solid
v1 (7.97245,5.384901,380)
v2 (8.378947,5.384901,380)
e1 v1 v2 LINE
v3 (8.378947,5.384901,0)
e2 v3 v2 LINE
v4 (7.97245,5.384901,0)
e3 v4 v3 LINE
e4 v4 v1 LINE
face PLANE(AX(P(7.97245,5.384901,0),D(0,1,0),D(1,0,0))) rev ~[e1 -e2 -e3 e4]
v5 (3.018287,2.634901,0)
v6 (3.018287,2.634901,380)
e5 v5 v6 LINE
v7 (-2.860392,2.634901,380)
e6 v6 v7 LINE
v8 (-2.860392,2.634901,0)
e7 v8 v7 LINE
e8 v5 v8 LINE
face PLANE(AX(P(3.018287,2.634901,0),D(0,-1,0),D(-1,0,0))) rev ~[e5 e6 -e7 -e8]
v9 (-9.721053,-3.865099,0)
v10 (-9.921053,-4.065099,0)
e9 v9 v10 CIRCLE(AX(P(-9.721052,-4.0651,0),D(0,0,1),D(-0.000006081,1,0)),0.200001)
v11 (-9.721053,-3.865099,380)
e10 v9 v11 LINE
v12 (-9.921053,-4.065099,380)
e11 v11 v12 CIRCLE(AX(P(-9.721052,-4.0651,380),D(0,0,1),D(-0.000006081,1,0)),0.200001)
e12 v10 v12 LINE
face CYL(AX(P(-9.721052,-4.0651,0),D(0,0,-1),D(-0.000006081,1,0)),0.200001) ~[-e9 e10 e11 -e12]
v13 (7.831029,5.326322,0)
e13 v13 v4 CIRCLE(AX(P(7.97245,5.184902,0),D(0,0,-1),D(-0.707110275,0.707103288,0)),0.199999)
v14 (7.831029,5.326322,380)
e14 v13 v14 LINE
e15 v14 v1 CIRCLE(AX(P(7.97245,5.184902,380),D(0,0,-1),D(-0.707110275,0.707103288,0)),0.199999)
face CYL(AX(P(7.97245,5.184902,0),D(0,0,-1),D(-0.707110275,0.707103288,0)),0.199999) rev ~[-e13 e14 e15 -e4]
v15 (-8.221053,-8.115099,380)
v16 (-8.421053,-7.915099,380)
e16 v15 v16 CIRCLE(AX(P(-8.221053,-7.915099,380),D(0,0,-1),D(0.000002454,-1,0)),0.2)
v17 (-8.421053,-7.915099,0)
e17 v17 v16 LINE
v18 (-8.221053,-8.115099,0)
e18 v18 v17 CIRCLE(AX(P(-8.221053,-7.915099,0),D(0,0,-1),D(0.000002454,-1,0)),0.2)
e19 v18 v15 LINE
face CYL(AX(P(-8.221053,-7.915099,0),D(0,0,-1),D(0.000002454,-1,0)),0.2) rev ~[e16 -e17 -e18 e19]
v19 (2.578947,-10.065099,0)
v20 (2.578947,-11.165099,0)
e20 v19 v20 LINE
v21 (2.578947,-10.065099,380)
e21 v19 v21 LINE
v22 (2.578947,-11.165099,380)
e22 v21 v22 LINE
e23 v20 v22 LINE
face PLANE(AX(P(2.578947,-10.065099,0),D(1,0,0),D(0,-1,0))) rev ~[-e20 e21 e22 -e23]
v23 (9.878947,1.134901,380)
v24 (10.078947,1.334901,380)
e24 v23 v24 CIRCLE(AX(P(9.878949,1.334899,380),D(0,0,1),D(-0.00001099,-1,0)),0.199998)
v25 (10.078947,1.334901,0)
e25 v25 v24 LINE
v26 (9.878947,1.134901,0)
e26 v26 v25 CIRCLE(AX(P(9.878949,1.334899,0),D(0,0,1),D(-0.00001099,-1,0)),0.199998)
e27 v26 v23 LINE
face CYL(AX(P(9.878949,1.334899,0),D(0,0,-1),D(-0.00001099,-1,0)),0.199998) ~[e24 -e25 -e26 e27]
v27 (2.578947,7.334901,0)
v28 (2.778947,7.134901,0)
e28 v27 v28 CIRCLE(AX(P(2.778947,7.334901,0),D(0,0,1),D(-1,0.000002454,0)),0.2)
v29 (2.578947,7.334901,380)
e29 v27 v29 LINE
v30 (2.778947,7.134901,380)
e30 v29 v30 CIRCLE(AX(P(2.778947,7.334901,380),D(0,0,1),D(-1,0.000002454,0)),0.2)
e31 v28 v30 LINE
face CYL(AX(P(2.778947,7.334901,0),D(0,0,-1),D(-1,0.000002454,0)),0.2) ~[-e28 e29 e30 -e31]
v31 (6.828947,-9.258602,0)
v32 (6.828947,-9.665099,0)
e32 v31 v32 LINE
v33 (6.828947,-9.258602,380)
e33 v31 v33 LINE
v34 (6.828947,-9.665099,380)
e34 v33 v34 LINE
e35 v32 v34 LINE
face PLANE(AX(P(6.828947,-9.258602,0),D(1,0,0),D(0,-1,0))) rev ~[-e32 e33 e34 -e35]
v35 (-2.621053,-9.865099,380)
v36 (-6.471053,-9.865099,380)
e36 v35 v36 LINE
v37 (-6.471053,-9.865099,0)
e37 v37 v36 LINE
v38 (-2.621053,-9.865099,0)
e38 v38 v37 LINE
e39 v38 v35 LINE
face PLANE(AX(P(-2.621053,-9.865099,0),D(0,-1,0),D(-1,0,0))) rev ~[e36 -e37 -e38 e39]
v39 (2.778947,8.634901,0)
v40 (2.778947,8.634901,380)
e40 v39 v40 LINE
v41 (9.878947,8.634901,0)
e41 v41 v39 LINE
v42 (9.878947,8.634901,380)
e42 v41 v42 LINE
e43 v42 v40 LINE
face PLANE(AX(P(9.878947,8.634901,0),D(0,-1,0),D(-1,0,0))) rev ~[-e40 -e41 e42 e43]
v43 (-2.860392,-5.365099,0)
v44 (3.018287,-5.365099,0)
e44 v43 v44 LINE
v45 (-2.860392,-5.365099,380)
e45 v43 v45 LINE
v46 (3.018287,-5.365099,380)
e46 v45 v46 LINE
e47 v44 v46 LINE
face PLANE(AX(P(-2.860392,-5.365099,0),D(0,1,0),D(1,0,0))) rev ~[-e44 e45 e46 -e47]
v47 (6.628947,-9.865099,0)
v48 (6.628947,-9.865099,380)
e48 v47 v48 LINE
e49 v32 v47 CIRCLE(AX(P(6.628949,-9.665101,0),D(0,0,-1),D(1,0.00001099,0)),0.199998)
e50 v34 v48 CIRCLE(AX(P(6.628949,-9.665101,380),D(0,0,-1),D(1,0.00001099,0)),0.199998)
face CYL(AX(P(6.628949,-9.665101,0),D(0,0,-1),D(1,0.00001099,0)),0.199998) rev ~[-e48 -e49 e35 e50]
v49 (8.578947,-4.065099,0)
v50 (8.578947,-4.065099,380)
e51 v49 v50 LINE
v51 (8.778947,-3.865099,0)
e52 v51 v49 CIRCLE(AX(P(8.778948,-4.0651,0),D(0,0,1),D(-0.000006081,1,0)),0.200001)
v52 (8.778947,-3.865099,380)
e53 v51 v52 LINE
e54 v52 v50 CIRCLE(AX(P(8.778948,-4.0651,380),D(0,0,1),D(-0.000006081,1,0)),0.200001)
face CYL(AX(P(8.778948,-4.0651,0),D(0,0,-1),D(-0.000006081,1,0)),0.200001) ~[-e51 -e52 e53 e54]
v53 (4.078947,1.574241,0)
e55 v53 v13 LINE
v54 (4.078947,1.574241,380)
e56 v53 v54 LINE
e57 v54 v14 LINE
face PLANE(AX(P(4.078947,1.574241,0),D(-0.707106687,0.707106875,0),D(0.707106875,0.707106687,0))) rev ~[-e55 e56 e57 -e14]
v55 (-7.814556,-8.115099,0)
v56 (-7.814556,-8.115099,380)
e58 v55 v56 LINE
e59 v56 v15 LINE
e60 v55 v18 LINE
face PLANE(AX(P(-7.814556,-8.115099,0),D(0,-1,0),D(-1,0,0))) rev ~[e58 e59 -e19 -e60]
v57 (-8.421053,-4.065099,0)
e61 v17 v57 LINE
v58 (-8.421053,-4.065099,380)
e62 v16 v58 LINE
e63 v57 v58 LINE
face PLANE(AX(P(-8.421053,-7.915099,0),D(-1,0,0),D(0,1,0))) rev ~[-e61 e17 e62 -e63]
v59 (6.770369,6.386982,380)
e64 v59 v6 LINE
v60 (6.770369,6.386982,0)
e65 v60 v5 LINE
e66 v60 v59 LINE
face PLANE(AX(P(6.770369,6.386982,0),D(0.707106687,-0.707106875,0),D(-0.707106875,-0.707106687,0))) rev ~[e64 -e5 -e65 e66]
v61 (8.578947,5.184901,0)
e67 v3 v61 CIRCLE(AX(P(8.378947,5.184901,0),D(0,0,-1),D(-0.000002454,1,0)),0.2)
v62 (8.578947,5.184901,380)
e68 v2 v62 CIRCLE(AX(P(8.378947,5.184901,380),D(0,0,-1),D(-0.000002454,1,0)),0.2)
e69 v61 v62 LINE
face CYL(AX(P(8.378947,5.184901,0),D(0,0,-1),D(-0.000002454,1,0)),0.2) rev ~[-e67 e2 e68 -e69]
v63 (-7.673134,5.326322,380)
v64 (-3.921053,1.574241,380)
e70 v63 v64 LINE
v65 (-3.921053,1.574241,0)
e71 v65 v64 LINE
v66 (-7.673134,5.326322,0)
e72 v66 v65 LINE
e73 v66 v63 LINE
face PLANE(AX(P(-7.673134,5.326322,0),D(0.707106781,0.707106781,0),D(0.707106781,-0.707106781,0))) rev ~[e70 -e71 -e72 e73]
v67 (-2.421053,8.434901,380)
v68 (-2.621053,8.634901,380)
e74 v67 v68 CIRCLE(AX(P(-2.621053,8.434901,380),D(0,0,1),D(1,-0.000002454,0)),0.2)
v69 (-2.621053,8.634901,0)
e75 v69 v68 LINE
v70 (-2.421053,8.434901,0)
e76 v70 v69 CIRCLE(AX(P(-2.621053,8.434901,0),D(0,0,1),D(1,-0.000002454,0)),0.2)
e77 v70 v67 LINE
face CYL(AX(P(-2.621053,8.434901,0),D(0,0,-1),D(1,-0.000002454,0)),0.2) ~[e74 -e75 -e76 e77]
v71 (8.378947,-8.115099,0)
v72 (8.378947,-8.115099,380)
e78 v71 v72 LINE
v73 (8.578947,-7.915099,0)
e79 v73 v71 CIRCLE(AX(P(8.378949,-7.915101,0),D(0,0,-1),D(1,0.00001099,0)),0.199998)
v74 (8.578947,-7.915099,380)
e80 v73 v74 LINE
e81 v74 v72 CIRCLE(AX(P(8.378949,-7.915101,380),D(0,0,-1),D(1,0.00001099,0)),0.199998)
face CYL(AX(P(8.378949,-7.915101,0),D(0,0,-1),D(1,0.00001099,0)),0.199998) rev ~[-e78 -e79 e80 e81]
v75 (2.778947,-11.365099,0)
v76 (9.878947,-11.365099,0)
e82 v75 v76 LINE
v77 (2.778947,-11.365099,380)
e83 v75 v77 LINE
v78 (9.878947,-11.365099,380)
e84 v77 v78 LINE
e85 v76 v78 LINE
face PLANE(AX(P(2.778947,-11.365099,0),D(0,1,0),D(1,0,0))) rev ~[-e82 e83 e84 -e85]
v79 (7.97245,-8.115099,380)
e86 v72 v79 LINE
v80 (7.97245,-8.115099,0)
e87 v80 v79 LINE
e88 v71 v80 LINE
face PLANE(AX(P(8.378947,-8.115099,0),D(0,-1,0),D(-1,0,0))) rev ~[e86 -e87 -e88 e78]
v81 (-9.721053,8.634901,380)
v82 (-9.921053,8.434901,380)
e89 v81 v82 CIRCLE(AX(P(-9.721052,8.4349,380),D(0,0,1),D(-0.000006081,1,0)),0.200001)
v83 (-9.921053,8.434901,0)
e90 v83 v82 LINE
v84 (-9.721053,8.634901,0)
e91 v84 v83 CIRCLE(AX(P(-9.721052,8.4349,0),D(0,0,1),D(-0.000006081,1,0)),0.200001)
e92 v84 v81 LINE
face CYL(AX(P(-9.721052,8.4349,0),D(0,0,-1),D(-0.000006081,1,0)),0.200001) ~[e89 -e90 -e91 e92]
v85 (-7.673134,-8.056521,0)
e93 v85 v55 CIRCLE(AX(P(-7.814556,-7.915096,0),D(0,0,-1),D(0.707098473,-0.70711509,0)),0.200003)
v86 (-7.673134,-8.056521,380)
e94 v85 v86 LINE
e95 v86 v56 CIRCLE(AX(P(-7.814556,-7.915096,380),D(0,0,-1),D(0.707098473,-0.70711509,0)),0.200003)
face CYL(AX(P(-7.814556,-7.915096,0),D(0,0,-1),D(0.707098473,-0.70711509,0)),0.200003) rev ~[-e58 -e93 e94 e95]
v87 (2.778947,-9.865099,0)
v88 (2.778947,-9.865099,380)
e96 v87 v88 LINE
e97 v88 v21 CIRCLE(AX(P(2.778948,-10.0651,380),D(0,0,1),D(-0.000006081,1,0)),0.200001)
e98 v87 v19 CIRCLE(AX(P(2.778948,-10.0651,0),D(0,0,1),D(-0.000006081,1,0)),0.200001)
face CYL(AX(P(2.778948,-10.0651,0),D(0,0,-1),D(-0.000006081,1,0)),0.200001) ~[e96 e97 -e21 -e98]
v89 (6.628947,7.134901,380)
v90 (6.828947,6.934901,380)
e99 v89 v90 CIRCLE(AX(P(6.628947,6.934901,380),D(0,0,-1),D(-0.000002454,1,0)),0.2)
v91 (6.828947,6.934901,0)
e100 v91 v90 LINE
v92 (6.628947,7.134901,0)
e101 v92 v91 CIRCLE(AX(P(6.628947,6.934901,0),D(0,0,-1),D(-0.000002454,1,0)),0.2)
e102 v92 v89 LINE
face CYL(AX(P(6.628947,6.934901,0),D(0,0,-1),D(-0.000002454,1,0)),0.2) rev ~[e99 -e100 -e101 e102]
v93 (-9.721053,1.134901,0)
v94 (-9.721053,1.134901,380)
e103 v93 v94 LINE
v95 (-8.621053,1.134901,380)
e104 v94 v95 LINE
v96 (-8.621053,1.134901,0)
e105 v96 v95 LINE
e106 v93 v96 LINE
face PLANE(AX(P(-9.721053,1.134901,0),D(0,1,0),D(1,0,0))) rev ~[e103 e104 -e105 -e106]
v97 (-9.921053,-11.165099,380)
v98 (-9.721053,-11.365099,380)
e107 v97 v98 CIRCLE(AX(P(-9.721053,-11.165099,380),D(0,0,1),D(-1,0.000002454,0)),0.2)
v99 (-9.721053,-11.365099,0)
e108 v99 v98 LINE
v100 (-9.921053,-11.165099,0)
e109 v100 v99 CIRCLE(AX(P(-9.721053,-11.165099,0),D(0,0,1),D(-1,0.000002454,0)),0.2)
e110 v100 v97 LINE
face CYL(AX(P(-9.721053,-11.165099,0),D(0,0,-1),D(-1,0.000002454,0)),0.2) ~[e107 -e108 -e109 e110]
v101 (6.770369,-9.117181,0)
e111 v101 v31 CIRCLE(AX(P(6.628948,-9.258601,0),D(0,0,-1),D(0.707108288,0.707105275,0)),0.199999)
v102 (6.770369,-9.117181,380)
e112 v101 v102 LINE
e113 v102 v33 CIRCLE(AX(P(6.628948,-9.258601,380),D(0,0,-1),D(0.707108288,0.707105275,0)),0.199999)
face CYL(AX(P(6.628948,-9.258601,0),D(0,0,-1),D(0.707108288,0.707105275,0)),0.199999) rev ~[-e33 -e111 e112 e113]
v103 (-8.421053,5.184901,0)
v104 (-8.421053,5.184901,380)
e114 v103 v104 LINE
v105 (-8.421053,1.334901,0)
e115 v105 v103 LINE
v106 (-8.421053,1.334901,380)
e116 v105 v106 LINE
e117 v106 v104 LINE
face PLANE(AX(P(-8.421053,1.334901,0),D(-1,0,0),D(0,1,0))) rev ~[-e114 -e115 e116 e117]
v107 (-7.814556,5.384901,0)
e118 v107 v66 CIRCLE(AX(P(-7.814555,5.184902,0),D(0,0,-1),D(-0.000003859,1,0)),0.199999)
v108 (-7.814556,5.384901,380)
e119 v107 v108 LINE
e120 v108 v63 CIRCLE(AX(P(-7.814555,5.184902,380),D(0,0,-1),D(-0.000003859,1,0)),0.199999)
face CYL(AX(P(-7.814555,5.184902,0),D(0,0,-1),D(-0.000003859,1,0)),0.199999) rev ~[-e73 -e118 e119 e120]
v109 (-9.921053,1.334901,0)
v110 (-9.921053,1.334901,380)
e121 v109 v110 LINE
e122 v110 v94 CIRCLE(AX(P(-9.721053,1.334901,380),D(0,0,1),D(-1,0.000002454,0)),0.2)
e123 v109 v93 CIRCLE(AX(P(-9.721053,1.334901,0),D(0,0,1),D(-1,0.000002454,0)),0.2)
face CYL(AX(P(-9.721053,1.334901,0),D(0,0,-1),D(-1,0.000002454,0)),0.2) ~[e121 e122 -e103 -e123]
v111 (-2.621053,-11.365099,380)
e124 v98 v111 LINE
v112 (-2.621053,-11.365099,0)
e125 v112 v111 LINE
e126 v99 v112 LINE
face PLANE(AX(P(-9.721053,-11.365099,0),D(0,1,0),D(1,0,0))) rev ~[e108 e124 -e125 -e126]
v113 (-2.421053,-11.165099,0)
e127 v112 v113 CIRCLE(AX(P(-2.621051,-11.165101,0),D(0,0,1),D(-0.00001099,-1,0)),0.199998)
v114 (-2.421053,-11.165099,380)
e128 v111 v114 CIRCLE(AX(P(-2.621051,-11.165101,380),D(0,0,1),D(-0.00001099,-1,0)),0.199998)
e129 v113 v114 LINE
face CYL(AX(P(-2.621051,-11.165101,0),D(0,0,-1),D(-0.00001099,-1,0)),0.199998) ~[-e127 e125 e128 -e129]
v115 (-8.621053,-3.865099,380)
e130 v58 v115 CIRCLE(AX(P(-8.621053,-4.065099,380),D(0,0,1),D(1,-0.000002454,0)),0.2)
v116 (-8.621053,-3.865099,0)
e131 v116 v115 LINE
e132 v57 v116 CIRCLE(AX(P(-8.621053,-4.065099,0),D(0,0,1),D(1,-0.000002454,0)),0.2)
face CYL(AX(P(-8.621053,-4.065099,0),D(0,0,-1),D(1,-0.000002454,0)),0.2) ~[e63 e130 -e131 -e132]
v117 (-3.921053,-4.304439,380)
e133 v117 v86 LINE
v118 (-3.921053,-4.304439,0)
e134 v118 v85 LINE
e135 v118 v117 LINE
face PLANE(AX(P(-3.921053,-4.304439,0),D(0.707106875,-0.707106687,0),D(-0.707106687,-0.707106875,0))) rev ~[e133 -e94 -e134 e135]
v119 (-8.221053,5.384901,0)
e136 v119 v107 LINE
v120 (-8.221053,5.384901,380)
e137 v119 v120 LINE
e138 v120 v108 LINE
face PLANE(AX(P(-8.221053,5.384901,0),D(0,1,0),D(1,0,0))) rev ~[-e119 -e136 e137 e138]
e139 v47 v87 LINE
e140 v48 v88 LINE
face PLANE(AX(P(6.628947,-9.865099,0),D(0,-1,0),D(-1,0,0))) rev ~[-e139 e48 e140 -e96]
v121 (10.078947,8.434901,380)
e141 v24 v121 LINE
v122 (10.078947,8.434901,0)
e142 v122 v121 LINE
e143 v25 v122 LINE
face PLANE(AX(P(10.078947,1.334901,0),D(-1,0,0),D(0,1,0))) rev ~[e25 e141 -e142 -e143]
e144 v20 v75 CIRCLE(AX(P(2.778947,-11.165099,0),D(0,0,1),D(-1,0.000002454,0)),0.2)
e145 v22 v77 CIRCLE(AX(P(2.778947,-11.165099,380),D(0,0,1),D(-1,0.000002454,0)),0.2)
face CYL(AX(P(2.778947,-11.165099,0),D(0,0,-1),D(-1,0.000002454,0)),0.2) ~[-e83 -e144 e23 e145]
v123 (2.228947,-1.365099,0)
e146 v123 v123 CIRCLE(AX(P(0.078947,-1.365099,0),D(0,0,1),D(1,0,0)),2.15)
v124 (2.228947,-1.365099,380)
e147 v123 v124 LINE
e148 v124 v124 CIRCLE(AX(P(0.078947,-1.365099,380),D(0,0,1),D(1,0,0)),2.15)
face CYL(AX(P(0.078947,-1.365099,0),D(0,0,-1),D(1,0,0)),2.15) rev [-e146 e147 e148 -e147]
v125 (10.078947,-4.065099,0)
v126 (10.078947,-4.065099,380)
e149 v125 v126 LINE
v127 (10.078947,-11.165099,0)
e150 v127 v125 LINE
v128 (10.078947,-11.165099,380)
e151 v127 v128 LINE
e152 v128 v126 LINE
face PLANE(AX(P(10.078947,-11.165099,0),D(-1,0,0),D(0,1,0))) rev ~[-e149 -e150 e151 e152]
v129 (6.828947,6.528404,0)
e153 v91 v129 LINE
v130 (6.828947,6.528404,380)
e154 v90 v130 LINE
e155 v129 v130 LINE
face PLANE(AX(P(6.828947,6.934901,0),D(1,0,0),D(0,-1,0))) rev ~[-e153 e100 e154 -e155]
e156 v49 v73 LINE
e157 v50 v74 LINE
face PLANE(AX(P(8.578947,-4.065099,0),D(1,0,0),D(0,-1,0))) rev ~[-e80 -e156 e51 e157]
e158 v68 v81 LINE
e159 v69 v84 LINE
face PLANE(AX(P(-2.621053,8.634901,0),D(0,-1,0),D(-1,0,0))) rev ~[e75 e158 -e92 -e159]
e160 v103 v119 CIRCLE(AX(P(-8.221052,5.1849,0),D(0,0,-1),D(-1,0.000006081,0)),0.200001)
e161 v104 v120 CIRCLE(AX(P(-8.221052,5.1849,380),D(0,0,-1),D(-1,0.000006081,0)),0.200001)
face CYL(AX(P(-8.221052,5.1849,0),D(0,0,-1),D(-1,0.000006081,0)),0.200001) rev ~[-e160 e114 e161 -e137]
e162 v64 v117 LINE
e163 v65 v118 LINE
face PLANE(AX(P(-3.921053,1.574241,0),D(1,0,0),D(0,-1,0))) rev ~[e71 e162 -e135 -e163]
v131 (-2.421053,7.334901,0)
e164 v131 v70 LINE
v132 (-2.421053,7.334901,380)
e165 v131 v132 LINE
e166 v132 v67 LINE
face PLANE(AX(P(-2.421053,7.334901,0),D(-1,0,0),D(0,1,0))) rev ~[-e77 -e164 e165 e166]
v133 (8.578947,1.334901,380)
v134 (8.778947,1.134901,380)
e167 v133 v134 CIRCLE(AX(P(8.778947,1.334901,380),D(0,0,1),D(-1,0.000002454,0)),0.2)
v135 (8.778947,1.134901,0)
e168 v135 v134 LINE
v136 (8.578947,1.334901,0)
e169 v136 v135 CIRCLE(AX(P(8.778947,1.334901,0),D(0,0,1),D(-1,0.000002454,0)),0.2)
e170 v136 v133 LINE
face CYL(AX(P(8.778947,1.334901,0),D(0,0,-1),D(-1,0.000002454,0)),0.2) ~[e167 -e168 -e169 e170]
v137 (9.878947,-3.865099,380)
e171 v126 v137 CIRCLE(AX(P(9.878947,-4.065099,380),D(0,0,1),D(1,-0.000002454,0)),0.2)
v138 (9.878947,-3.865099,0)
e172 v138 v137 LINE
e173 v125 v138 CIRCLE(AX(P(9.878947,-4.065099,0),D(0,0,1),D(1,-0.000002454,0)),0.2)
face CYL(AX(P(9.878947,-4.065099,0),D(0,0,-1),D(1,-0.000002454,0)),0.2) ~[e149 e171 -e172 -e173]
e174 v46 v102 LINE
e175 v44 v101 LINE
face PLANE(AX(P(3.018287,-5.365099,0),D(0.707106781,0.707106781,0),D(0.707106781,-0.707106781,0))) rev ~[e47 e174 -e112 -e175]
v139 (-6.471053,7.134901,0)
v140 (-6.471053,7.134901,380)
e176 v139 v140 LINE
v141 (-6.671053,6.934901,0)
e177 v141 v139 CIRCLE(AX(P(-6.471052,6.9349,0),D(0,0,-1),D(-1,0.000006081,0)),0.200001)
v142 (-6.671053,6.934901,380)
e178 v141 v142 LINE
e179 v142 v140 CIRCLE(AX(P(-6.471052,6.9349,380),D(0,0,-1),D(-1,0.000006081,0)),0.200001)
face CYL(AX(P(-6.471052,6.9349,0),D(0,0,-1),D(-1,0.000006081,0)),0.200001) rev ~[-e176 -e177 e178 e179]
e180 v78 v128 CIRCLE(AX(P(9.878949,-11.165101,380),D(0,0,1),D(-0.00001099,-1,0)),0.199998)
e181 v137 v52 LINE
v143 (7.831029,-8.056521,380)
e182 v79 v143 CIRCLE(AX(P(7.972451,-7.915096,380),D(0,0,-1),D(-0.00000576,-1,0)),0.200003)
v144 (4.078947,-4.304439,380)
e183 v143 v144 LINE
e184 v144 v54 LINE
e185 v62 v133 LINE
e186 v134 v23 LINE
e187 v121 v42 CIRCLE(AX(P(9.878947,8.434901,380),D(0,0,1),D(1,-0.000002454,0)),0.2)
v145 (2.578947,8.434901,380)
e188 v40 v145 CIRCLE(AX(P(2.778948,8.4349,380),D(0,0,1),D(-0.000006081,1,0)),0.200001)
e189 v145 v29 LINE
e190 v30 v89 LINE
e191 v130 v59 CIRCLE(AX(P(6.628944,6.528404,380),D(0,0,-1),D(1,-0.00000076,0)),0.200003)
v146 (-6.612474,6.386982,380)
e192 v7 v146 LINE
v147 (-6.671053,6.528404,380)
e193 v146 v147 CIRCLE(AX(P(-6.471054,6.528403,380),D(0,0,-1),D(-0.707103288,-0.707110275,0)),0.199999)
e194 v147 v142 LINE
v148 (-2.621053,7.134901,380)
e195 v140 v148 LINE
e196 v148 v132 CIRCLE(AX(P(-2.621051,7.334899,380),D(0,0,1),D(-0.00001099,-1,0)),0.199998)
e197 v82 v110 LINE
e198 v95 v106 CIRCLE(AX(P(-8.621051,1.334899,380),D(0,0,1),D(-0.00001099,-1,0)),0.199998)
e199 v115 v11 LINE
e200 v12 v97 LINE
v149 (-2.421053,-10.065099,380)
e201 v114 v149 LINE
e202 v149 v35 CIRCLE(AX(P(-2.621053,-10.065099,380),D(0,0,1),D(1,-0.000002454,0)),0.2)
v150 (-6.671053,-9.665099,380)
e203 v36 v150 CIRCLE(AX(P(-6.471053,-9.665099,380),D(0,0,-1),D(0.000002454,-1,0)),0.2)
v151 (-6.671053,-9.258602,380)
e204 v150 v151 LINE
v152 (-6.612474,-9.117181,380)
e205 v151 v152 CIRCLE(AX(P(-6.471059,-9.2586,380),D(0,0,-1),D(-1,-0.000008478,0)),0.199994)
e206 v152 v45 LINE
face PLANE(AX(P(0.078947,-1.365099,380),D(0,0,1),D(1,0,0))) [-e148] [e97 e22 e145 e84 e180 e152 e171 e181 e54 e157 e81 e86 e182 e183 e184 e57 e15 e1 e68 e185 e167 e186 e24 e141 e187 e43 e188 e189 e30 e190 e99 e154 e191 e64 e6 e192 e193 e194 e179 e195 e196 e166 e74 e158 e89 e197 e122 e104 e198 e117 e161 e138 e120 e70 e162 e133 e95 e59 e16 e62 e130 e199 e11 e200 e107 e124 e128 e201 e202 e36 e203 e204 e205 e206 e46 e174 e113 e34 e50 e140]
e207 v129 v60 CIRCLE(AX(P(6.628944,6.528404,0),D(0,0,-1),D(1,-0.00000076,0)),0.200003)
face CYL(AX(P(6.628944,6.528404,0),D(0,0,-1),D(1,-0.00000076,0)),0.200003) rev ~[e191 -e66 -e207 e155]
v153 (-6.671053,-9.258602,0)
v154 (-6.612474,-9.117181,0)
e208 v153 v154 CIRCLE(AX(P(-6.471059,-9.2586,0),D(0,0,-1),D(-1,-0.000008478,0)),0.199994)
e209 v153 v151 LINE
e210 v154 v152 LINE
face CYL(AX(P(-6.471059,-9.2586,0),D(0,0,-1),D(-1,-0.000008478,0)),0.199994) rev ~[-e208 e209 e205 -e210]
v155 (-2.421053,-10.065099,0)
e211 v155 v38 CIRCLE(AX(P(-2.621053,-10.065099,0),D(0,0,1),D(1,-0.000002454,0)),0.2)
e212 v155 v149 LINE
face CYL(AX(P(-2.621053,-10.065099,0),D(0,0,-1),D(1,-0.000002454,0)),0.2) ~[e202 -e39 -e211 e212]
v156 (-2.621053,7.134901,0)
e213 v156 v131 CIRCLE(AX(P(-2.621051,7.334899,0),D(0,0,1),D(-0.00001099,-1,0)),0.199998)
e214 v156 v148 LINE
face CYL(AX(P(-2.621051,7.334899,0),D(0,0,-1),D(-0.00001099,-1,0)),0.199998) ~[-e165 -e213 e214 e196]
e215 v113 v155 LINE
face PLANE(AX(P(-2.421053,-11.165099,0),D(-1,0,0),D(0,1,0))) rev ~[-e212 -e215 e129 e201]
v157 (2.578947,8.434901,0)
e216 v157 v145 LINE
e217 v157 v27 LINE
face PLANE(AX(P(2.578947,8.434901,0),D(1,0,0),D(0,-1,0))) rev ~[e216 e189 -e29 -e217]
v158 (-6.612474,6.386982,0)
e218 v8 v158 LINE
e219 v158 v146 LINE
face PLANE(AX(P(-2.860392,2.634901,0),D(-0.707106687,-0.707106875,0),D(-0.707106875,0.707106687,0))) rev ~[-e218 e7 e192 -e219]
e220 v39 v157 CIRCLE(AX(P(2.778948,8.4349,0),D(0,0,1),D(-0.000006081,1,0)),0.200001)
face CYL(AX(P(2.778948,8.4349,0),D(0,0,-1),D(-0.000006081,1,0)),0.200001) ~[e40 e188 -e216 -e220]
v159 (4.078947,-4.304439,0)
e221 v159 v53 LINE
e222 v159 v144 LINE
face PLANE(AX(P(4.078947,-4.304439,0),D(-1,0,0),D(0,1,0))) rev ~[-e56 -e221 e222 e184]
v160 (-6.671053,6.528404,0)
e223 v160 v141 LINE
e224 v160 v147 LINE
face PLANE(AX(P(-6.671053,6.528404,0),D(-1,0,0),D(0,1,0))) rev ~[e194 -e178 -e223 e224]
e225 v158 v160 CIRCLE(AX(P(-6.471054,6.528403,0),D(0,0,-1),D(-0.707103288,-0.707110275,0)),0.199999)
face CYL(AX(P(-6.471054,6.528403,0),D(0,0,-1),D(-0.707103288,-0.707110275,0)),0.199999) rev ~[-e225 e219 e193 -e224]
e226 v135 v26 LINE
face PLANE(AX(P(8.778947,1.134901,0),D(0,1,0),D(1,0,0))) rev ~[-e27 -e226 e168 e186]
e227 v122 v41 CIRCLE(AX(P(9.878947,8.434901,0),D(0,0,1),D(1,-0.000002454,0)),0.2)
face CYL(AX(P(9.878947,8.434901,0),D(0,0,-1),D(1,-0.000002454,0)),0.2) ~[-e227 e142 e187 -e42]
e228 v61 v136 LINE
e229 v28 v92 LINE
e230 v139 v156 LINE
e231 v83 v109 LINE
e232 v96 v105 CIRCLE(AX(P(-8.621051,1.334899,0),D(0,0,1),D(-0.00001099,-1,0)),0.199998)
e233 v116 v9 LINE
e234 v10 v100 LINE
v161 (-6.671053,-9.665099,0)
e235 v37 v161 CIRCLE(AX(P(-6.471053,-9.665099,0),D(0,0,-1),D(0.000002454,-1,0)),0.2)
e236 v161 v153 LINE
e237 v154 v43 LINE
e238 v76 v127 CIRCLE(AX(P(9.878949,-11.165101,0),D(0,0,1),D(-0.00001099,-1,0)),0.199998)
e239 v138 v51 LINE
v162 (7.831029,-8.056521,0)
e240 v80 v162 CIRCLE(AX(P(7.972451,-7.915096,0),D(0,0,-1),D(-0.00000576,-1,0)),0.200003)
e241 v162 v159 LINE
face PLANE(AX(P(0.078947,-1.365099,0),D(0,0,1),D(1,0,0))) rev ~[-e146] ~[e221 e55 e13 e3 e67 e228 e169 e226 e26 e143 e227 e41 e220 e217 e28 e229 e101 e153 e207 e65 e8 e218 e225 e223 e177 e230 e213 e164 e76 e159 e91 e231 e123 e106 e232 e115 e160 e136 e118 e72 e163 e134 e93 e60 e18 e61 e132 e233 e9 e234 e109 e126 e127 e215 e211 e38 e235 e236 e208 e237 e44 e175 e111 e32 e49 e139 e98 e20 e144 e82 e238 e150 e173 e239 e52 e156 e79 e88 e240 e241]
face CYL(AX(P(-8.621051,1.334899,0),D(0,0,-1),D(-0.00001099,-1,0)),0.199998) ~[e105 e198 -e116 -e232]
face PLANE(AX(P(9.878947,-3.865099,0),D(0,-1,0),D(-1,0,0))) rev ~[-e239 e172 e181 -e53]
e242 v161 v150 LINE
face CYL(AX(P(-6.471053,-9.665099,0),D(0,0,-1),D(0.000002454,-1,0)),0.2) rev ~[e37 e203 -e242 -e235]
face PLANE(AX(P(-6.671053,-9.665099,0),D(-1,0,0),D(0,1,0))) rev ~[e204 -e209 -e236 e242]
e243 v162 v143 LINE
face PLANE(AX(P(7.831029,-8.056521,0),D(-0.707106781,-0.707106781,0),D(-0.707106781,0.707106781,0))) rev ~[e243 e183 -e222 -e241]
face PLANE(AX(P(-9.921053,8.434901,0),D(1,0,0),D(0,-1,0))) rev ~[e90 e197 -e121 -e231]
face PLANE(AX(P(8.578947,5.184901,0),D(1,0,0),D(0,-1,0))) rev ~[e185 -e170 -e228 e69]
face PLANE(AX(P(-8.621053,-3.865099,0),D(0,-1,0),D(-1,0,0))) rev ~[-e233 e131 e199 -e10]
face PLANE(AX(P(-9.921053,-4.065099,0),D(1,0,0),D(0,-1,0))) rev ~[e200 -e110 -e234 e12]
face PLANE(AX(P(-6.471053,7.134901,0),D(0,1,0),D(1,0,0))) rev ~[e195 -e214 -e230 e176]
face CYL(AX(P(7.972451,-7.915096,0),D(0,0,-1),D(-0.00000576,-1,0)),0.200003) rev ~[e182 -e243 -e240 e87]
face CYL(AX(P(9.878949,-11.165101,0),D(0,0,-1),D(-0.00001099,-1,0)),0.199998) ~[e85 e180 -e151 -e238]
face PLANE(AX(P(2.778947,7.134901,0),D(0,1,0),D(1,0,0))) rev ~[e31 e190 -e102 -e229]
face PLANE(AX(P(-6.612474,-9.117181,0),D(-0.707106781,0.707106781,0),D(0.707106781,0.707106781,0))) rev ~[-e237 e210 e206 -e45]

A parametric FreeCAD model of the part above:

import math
import FreeCAD as App
import Part
import Sketcher

V = App.Vector

doc = App.newDocument("Part")
body = doc.addObject("PartDesign::Body", "Body")

sketch1 = body.newObject("Sketcher::SketchObject", "Sketch")
sketch1.AttachmentSupport = (doc.getObject("XY_Plane"), [""])
sketch1.MapMode = "FlatFace"
sketch1.addGeometry(Part.ArcOfCircle(Part.Circle(V(9.88, 8.43, 0), V(0, 0, 1), 0.2), math.radians(0), math.radians(90)), False)
sketch1.addGeometry(Part.LineSegment(V(9.88, 8.63, 0), V(2.78, 8.63, 0)), False)
sketch1.addGeometry(Part.ArcOfCircle(Part.Circle(V(2.78, 8.43, 0), V(0, 0, 1), 0.2), math.radians(90), math.radians(180)), False)
sketch1.addGeometry(Part.LineSegment(V(2.58, 8.43, 0), V(2.58, 7.33, 0)), False)
sketch1.addGeometry(Part.ArcOfCircle(Part.Circle(V(2.78, 7.33, 0), V(0, 0, 1), 0.2), math.radians(180), math.radians(270)), False)
sketch1.addGeometry(Part.LineSegment(V(2.78, 7.13, 0), V(6.63, 7.13, 0)), False)
sketch1.addGeometry(Part.ArcOfCircle(Part.Circle(V(6.63, 6.93, 0), V(0, 0, 1), 0.2), math.radians(0), math.radians(90)), False)
sketch1.addGeometry(Part.LineSegment(V(6.83, 6.93, 0), V(6.83, 6.53, 0)), False)
sketch1.addGeometry(Part.ArcOfCircle(Part.Circle(V(6.63, 6.53, 0), V(0, 0, 1), 0.2), math.radians(-45), math.radians(0)), False)
sketch1.addGeometry(Part.LineSegment(V(6.77, 6.39, 0), V(3.02, 2.63, 0)), False)
sketch1.addGeometry(Part.LineSegment(V(3.02, 2.63, 0), V(-2.86, 2.63, 0)), False)
sketch1.addGeometry(Part.LineSegment(V(-2.86, 2.63, 0), V(-6.61, 6.39, 0)), False)
sketch1.addGeometry(Part.ArcOfCircle(Part.Circle(V(-6.47, 6.53, 0), V(0, 0, 1), 0.2), math.radians(180), math.radians(225)), False)
sketch1.addGeometry(Part.LineSegment(V(-6.67, 6.53, 0), V(-6.67, 6.93, 0)), False)
sketch1.addGeometry(Part.ArcOfCircle(Part.Circle(V(-6.47, 6.93, 0), V(0, 0, 1), 0.2), math.radians(90), math.radians(180)), False)
sketch1.addGeometry(Part.LineSegment(V(-6.47, 7.13, 0), V(-2.62, 7.13, 0)), False)
sketch1.addGeometry(Part.ArcOfCircle(Part.Circle(V(-2.62, 7.33, 0), V(0, 0, 1), 0.2), math.radians(-90), math.radians(0)), False)
sketch1.addGeometry(Part.LineSegment(V(-2.42, 7.33, 0), V(-2.42, 8.43, 0)), False)
sketch1.addGeometry(Part.ArcOfCircle(Part.Circle(V(-2.62, 8.43, 0), V(0, 0, 1), 0.2), math.radians(0), math.radians(90)), False)
sketch1.addGeometry(Part.LineSegment(V(-2.62, 8.63, 0), V(-9.72, 8.63, 0)), False)
sketch1.addGeometry(Part.ArcOfCircle(Part.Circle(V(-9.72, 8.43, 0), V(0, 0, 1), 0.2), math.radians(90), math.radians(180)), False)
sketch1.addGeometry(Part.LineSegment(V(-9.92, 8.43, 0), V(-9.92, 1.33, 0)), False)
sketch1.addGeometry(Part.ArcOfCircle(Part.Circle(V(-9.72, 1.33, 0), V(0, 0, 1), 0.2), math.radians(180), math.radians(270)), False)
sketch1.addGeometry(Part.LineSegment(V(-9.72, 1.13, 0), V(-8.62, 1.13, 0)), False)
sketch1.addGeometry(Part.ArcOfCircle(Part.Circle(V(-8.62, 1.33, 0), V(0, 0, 1), 0.2), math.radians(-90), math.radians(0)), False)
sketch1.addGeometry(Part.LineSegment(V(-8.42, 1.33, 0), V(-8.42, 5.18, 0)), False)
sketch1.addGeometry(Part.ArcOfCircle(Part.Circle(V(-8.22, 5.18, 0), V(0, 0, 1), 0.2), math.radians(90), math.radians(180)), False)
sketch1.addGeometry(Part.LineSegment(V(-8.22, 5.38, 0), V(-7.81, 5.38, 0)), False)
sketch1.addGeometry(Part.ArcOfCircle(Part.Circle(V(-7.81, 5.18, 0), V(0, 0, 1), 0.2), math.radians(45), math.radians(90)), False)
sketch1.addGeometry(Part.LineSegment(V(-7.67, 5.33, 0), V(-3.92, 1.57, 0)), False)
sketch1.addGeometry(Part.LineSegment(V(-3.92, 1.57, 0), V(-3.92, -4.3, 0)), False)
sketch1.addGeometry(Part.LineSegment(V(-3.92, -4.3, 0), V(-7.67, -8.06, 0)), False)
sketch1.addGeometry(Part.ArcOfCircle(Part.Circle(V(-7.81, -7.92, 0), V(0, 0, 1), 0.2), math.radians(-90), math.radians(-45)), False)
sketch1.addGeometry(Part.LineSegment(V(-7.81, -8.12, 0), V(-8.22, -8.12, 0)), False)
sketch1.addGeometry(Part.ArcOfCircle(Part.Circle(V(-8.22, -7.92, 0), V(0, 0, 1), 0.2), math.radians(180), math.radians(270)), False)
sketch1.addGeometry(Part.LineSegment(V(-8.42, -7.92, 0), V(-8.42, -4.07, 0)), False)
sketch1.addGeometry(Part.ArcOfCircle(Part.Circle(V(-8.62, -4.07, 0), V(0, 0, 1), 0.2), math.radians(0), math.radians(90)), False)
sketch1.addGeometry(Part.LineSegment(V(-8.62, -3.87, 0), V(-9.72, -3.87, 0)), False)
sketch1.addGeometry(Part.ArcOfCircle(Part.Circle(V(-9.72, -4.07, 0), V(0, 0, 1), 0.2), math.radians(90), math.radians(180)), False)
sketch1.addGeometry(Part.LineSegment(V(-9.92, -4.07, 0), V(-9.92, -11.17, 0)), False)
sketch1.addGeometry(Part.ArcOfCircle(Part.Circle(V(-9.72, -11.17, 0), V(0, 0, 1), 0.2), math.radians(180), math.radians(270)), False)
sketch1.addGeometry(Part.LineSegment(V(-9.72, -11.37, 0), V(-2.62, -11.37, 0)), False)
sketch1.addGeometry(Part.ArcOfCircle(Part.Circle(V(-2.62, -11.17, 0), V(0, 0, 1), 0.2), math.radians(-90), math.radians(0)), False)
sketch1.addGeometry(Part.LineSegment(V(-2.42, -11.17, 0), V(-2.42, -10.07, 0)), False)
sketch1.addGeometry(Part.ArcOfCircle(Part.Circle(V(-2.62, -10.07, 0), V(0, 0, 1), 0.2), math.radians(0), math.radians(90)), False)
sketch1.addGeometry(Part.LineSegment(V(-2.62, -9.87, 0), V(-6.47, -9.87, 0)), False)
sketch1.addGeometry(Part.ArcOfCircle(Part.Circle(V(-6.47, -9.67, 0), V(0, 0, 1), 0.2), math.radians(180), math.radians(270)), False)
sketch1.addGeometry(Part.LineSegment(V(-6.67, -9.67, 0), V(-6.67, -9.26, 0)), False)
sketch1.addGeometry(Part.ArcOfCircle(Part.Circle(V(-6.47, -9.26, 0), V(0, 0, 1), 0.2), math.radians(135), math.radians(180)), False)
sketch1.addGeometry(Part.LineSegment(V(-6.61, -9.12, 0), V(-2.86, -5.37, 0)), False)
sketch1.addGeometry(Part.LineSegment(V(-2.86, -5.37, 0), V(3.02, -5.37, 0)), False)
sketch1.addGeometry(Part.LineSegment(V(3.02, -5.37, 0), V(6.77, -9.12, 0)), False)
sketch1.addGeometry(Part.ArcOfCircle(Part.Circle(V(6.63, -9.26, 0), V(0, 0, 1), 0.2), math.radians(0), math.radians(45)), False)
sketch1.addGeometry(Part.LineSegment(V(6.83, -9.26, 0), V(6.83, -9.67, 0)), False)
sketch1.addGeometry(Part.ArcOfCircle(Part.Circle(V(6.63, -9.67, 0), V(0, 0, 1), 0.2), math.radians(-90), math.radians(0)), False)
sketch1.addGeometry(Part.LineSegment(V(6.63, -9.87, 0), V(2.78, -9.87, 0)), False)
sketch1.addGeometry(Part.ArcOfCircle(Part.Circle(V(2.78, -10.07, 0), V(0, 0, 1), 0.2), math.radians(90), math.radians(180)), False)
sketch1.addGeometry(Part.LineSegment(V(2.58, -10.07, 0), V(2.58, -11.17, 0)), False)
sketch1.addGeometry(Part.ArcOfCircle(Part.Circle(V(2.78, -11.17, 0), V(0, 0, 1), 0.2), math.radians(180), math.radians(270)), False)
sketch1.addGeometry(Part.LineSegment(V(2.78, -11.37, 0), V(9.88, -11.37, 0)), False)
sketch1.addGeometry(Part.ArcOfCircle(Part.Circle(V(9.88, -11.17, 0), V(0, 0, 1), 0.2), math.radians(-90), math.radians(0)), False)
sketch1.addGeometry(Part.LineSegment(V(10.08, -11.17, 0), V(10.08, -4.07, 0)), False)
sketch1.addGeometry(Part.ArcOfCircle(Part.Circle(V(9.88, -4.07, 0), V(0, 0, 1), 0.2), math.radians(0), math.radians(90)), False)
sketch1.addGeometry(Part.LineSegment(V(9.88, -3.87, 0), V(8.78, -3.87, 0)), False)
sketch1.addGeometry(Part.ArcOfCircle(Part.Circle(V(8.78, -4.07, 0), V(0, 0, 1), 0.2), math.radians(90), math.radians(180)), False)
sketch1.addGeometry(Part.LineSegment(V(8.58, -4.07, 0), V(8.58, -7.92, 0)), False)
sketch1.addGeometry(Part.ArcOfCircle(Part.Circle(V(8.38, -7.92, 0), V(0, 0, 1), 0.2), math.radians(-90), math.radians(0)), False)
sketch1.addGeometry(Part.LineSegment(V(8.38, -8.12, 0), V(7.97, -8.12, 0)), False)
sketch1.addGeometry(Part.ArcOfCircle(Part.Circle(V(7.97, -7.92, 0), V(0, 0, 1), 0.2), math.radians(-135), math.radians(-90)), False)
sketch1.addGeometry(Part.LineSegment(V(7.83, -8.06, 0), V(4.08, -4.3, 0)), False)
sketch1.addGeometry(Part.LineSegment(V(4.08, -4.3, 0), V(4.08, 1.57, 0)), False)
sketch1.addGeometry(Part.LineSegment(V(4.08, 1.57, 0), V(7.83, 5.33, 0)), False)
sketch1.addGeometry(Part.ArcOfCircle(Part.Circle(V(7.97, 5.18, 0), V(0, 0, 1), 0.2), math.radians(90), math.radians(135)), False)
sketch1.addGeometry(Part.LineSegment(V(7.97, 5.38, 0), V(8.38, 5.38, 0)), False)
sketch1.addGeometry(Part.ArcOfCircle(Part.Circle(V(8.38, 5.18, 0), V(0, 0, 1), 0.2), math.radians(0), math.radians(90)), False)
sketch1.addGeometry(Part.LineSegment(V(8.58, 5.18, 0), V(8.58, 1.33, 0)), False)
sketch1.addGeometry(Part.ArcOfCircle(Part.Circle(V(8.78, 1.33, 0), V(0, 0, 1), 0.2), math.radians(180), math.radians(270)), False)
sketch1.addGeometry(Part.LineSegment(V(8.78, 1.13, 0), V(9.88, 1.13, 0)), False)
sketch1.addGeometry(Part.ArcOfCircle(Part.Circle(V(9.88, 1.33, 0), V(0, 0, 1), 0.2), math.radians(-90), math.radians(0)), False)
sketch1.addGeometry(Part.LineSegment(V(10.08, 1.33, 0), V(10.08, 8.43, 0)), False)
sketch1.addGeometry(Part.Circle(V(0.08, -1.37, 0), V(0, 0, 1), 2.15), False)
sketch1.addConstraint(Sketcher.Constraint("Coincident", 0, 2, 1, 1))
sketch1.addConstraint(Sketcher.Constraint("Coincident", 1, 2, 2, 1))
sketch1.addConstraint(Sketcher.Constraint("Coincident", 2, 2, 3, 1))
sketch1.addConstraint(Sketcher.Constraint("Coincident", 3, 2, 4, 1))
sketch1.addConstraint(Sketcher.Constraint("Coincident", 4, 2, 5, 1))
sketch1.addConstraint(Sketcher.Constraint("Coincident", 5, 2, 6, 2))
sketch1.addConstraint(Sketcher.Constraint("Coincident", 6, 1, 7, 1))
sketch1.addConstraint(Sketcher.Constraint("Tangent", 7, 2, 8, 2))
sketch1.addConstraint(Sketcher.Constraint("Coincident", 8, 1, 9, 1))
sketch1.addConstraint(Sketcher.Constraint("Coincident", 9, 2, 10, 1))
sketch1.addConstraint(Sketcher.Constraint("Coincident", 10, 2, 11, 1))
sketch1.addConstraint(Sketcher.Constraint("Coincident", 11, 2, 12, 2))
sketch1.addConstraint(Sketcher.Constraint("Coincident", 12, 1, 13, 1))
sketch1.addConstraint(Sketcher.Constraint("Coincident", 13, 2, 14, 2))
sketch1.addConstraint(Sketcher.Constraint("Coincident", 14, 1, 15, 1))
sketch1.addConstraint(Sketcher.Constraint("Coincident", 15, 2, 16, 1))
sketch1.addConstraint(Sketcher.Constraint("Coincident", 16, 2, 17, 1))
sketch1.addConstraint(Sketcher.Constraint("Coincident", 17, 2, 18, 1))
sketch1.addConstraint(Sketcher.Constraint("Coincident", 18, 2, 19, 1))
sketch1.addConstraint(Sketcher.Constraint("Coincident", 19, 2, 20, 1))
sketch1.addConstraint(Sketcher.Constraint("Coincident", 20, 2, 21, 1))
sketch1.addConstraint(Sketcher.Constraint("Coincident", 21, 2, 22, 1))
sketch1.addConstraint(Sketcher.Constraint("Coincident", 22, 2, 23, 1))
sketch1.addConstraint(Sketcher.Constraint("Coincident", 23, 2, 24, 1))
sketch1.addConstraint(Sketcher.Constraint("Coincident", 24, 2, 25, 1))
sketch1.addConstraint(Sketcher.Constraint("Coincident", 25, 2, 26, 2))
sketch1.addConstraint(Sketcher.Constraint("Coincident", 26, 1, 27, 1))
sketch1.addConstraint(Sketcher.Constraint("Coincident", 27, 2, 28, 2))
sketch1.addConstraint(Sketcher.Constraint("Coincident", 28, 1, 29, 1))
sketch1.addConstraint(Sketcher.Constraint("Coincident", 29, 2, 30, 1))
sketch1.addConstraint(Sketcher.Constraint("Coincident", 30, 2, 31, 1))
sketch1.addConstraint(Sketcher.Constraint("Coincident", 31, 2, 32, 2))
sketch1.addConstraint(Sketcher.Constraint("Tangent", 32, 1, 33, 1))
sketch1.addConstraint(Sketcher.Constraint("Coincident", 33, 2, 34, 2))
sketch1.addConstraint(Sketcher.Constraint("Coincident", 34, 1, 35, 1))
sketch1.addConstraint(Sketcher.Constraint("Coincident", 35, 2, 36, 1))
sketch1.addConstraint(Sketcher.Constraint("Coincident", 36, 2, 37, 1))
sketch1.addConstraint(Sketcher.Constraint("Coincident", 37, 2, 38, 1))
sketch1.addConstraint(Sketcher.Constraint("Coincident", 38, 2, 39, 1))
sketch1.addConstraint(Sketcher.Constraint("Coincident", 39, 2, 40, 1))
sketch1.addConstraint(Sketcher.Constraint("Coincident", 40, 2, 41, 1))
sketch1.addConstraint(Sketcher.Constraint("Coincident", 41, 2, 42, 1))
sketch1.addConstraint(Sketcher.Constraint("Coincident", 42, 2, 43, 1))
sketch1.addConstraint(Sketcher.Constraint("Coincident", 43, 2, 44, 1))
sketch1.addConstraint(Sketcher.Constraint("Coincident", 44, 2, 45, 1))
sketch1.addConstraint(Sketcher.Constraint("Coincident", 45, 2, 46, 2))
sketch1.addConstraint(Sketcher.Constraint("Coincident", 46, 1, 47, 1))
sketch1.addConstraint(Sketcher.Constraint("Coincident", 47, 2, 48, 2))
sketch1.addConstraint(Sketcher.Constraint("Coincident", 48, 1, 49, 1))
sketch1.addConstraint(Sketcher.Constraint("Coincident", 49, 2, 50, 1))
sketch1.addConstraint(Sketcher.Constraint("Coincident", 50, 2, 51, 1))
sketch1.addConstraint(Sketcher.Constraint("Coincident", 51, 2, 52, 2))
sketch1.addConstraint(Sketcher.Constraint("Coincident", 52, 1, 53, 1))
sketch1.addConstraint(Sketcher.Constraint("Coincident", 53, 2, 54, 2))
sketch1.addConstraint(Sketcher.Constraint("Coincident", 54, 1, 55, 1))
sketch1.addConstraint(Sketcher.Constraint("Coincident", 55, 2, 56, 1))
sketch1.addConstraint(Sketcher.Constraint("Coincident", 56, 2, 57, 1))
sketch1.addConstraint(Sketcher.Constraint("Coincident", 57, 2, 58, 1))
sketch1.addConstraint(Sketcher.Constraint("Coincident", 58, 2, 59, 1))
sketch1.addConstraint(Sketcher.Constraint("Coincident", 59, 2, 60, 1))
sketch1.addConstraint(Sketcher.Constraint("Coincident", 60, 2, 61, 1))
sketch1.addConstraint(Sketcher.Constraint("Coincident", 61, 2, 62, 1))
sketch1.addConstraint(Sketcher.Constraint("Coincident", 62, 2, 63, 1))
sketch1.addConstraint(Sketcher.Constraint("Coincident", 63, 2, 64, 1))
sketch1.addConstraint(Sketcher.Constraint("Coincident", 64, 2, 65, 1))
sketch1.addConstraint(Sketcher.Constraint("Coincident", 65, 2, 66, 2))
sketch1.addConstraint(Sketcher.Constraint("Coincident", 66, 1, 67, 1))
sketch1.addConstraint(Sketcher.Constraint("Coincident", 67, 2, 68, 2))
sketch1.addConstraint(Sketcher.Constraint("Coincident", 68, 1, 69, 1))
sketch1.addConstraint(Sketcher.Constraint("Coincident", 69, 2, 70, 1))
sketch1.addConstraint(Sketcher.Constraint("Coincident", 70, 2, 71, 1))
sketch1.addConstraint(Sketcher.Constraint("Coincident", 71, 2, 72, 2))
sketch1.addConstraint(Sketcher.Constraint("Tangent", 72, 1, 73, 1))
sketch1.addConstraint(Sketcher.Constraint("Coincident", 73, 2, 74, 2))
sketch1.addConstraint(Sketcher.Constraint("Coincident", 74, 1, 75, 1))
sketch1.addConstraint(Sketcher.Constraint("Coincident", 75, 2, 76, 1))
sketch1.addConstraint(Sketcher.Constraint("Coincident", 76, 2, 77, 1))
sketch1.addConstraint(Sketcher.Constraint("Coincident", 77, 2, 78, 1))
sketch1.addConstraint(Sketcher.Constraint("Coincident", 78, 2, 79, 1))
sketch1.addConstraint(Sketcher.Constraint("Coincident", 79, 2, 0, 1))
sketch1.addConstraint(Sketcher.Constraint("Horizontal", 1))
sketch1.addConstraint(Sketcher.Constraint("Vertical", 3))
sketch1.addConstraint(Sketcher.Constraint("Horizontal", 5))
sketch1.addConstraint(Sketcher.Constraint("Vertical", 7))
sketch1.addConstraint(Sketcher.Constraint("Horizontal", 10))
sketch1.addConstraint(Sketcher.Constraint("Vertical", 13))
sketch1.addConstraint(Sketcher.Constraint("Horizontal", 15))
sketch1.addConstraint(Sketcher.Constraint("Vertical", 17))
sketch1.addConstraint(Sketcher.Constraint("Horizontal", 19))
sketch1.addConstraint(Sketcher.Constraint("Vertical", 21))
sketch1.addConstraint(Sketcher.Constraint("Horizontal", 23))
sketch1.addConstraint(Sketcher.Constraint("Vertical", 25))
sketch1.addConstraint(Sketcher.Constraint("Horizontal", 27))
sketch1.addConstraint(Sketcher.Constraint("Vertical", 30))
sketch1.addConstraint(Sketcher.Constraint("Horizontal", 33))
sketch1.addConstraint(Sketcher.Constraint("Vertical", 35))
sketch1.addConstraint(Sketcher.Constraint("Horizontal", 37))
sketch1.addConstraint(Sketcher.Constraint("Vertical", 39))
sketch1.addConstraint(Sketcher.Constraint("Horizontal", 41))
sketch1.addConstraint(Sketcher.Constraint("Vertical", 43))
sketch1.addConstraint(Sketcher.Constraint("Horizontal", 45))
sketch1.addConstraint(Sketcher.Constraint("Vertical", 47))
sketch1.addConstraint(Sketcher.Constraint("Horizontal", 50))
sketch1.addConstraint(Sketcher.Constraint("Vertical", 53))
sketch1.addConstraint(Sketcher.Constraint("Horizontal", 55))
sketch1.addConstraint(Sketcher.Constraint("Vertical", 57))
sketch1.addConstraint(Sketcher.Constraint("Horizontal", 59))
sketch1.addConstraint(Sketcher.Constraint("Vertical", 61))
sketch1.addConstraint(Sketcher.Constraint("Horizontal", 63))
sketch1.addConstraint(Sketcher.Constraint("Vertical", 65))
sketch1.addConstraint(Sketcher.Constraint("Horizontal", 67))
sketch1.addConstraint(Sketcher.Constraint("Vertical", 70))
sketch1.addConstraint(Sketcher.Constraint("Horizontal", 73))
sketch1.addConstraint(Sketcher.Constraint("Vertical", 75))
sketch1.addConstraint(Sketcher.Constraint("Horizontal", 77))
sketch1.addConstraint(Sketcher.Constraint("Vertical", 79))
sketch1.addConstraint(Sketcher.Constraint("Equal", 0, 2))
sketch1.addConstraint(Sketcher.Constraint("Equal", 2, 4))
sketch1.addConstraint(Sketcher.Constraint("Equal", 4, 6))
sketch1.addConstraint(Sketcher.Constraint("Equal", 6, 12))
sketch1.addConstraint(Sketcher.Constraint("Equal", 6, 14))
sketch1.addConstraint(Sketcher.Constraint("Equal", 12, 16))
sketch1.addConstraint(Sketcher.Constraint("Equal", 16, 18))
sketch1.addConstraint(Sketcher.Constraint("Equal", 18, 20))
sketch1.addConstraint(Sketcher.Constraint("Equal", 20, 22))
sketch1.addConstraint(Sketcher.Constraint("Equal", 22, 24))
sketch1.addConstraint(Sketcher.Constraint("Equal", 22, 26))
sketch1.addConstraint(Sketcher.Constraint("Equal", 24, 28))
sketch1.addConstraint(Sketcher.Constraint("Equal", 8, 32))
sketch1.addConstraint(Sketcher.Constraint("Equal", 28, 34))
sketch1.addConstraint(Sketcher.Constraint("Equal", 34, 36))
sketch1.addConstraint(Sketcher.Constraint("Equal", 36, 38))
sketch1.addConstraint(Sketcher.Constraint("Equal", 38, 40))
sketch1.addConstraint(Sketcher.Constraint("Equal", 40, 42))
sketch1.addConstraint(Sketcher.Constraint("Equal", 42, 44))
sketch1.addConstraint(Sketcher.Constraint("Equal", 44, 46))
sketch1.addConstraint(Sketcher.Constraint("Equal", 46, 52))
sketch1.addConstraint(Sketcher.Constraint("Equal", 52, 54))
sketch1.addConstraint(Sketcher.Constraint("Equal", 46, 56))
sketch1.addConstraint(Sketcher.Constraint("Equal", 56, 58))
sketch1.addConstraint(Sketcher.Constraint("Equal", 58, 60))
sketch1.addConstraint(Sketcher.Constraint("Equal", 60, 62))
sketch1.addConstraint(Sketcher.Constraint("Equal", 62, 64))
sketch1.addConstraint(Sketcher.Constraint("Equal", 62, 66))
sketch1.addConstraint(Sketcher.Constraint("Equal", 32, 68))
sketch1.addConstraint(Sketcher.Constraint("Equal", 66, 72))
sketch1.addConstraint(Sketcher.Constraint("Equal", 72, 74))
sketch1.addConstraint(Sketcher.Constraint("Equal", 74, 76))
sketch1.addConstraint(Sketcher.Constraint("Equal", 76, 78))
sketch1.addConstraint(Sketcher.Constraint("Perpendicular", 9, 11))
sketch1.addConstraint(Sketcher.Constraint("Parallel", 11, 29))
sketch1.addConstraint(Sketcher.Constraint("Perpendicular", 29, 31))
sketch1.addConstraint(Sketcher.Constraint("Parallel", 31, 49))
sketch1.addConstraint(Sketcher.Constraint("Perpendicular", 49, 51))
sketch1.addConstraint(Sketcher.Constraint("Parallel", 51, 69))
sketch1.addConstraint(Sketcher.Constraint("Perpendicular", 69, 71))
sketch1.addConstraint(Sketcher.Constraint("Horizontal", 8, 3, 12, 3))
sketch1.addConstraint(Sketcher.Constraint("Horizontal", 6, 3, 14, 3))
sketch1.addConstraint(Sketcher.Constraint("Horizontal", 2, 3, 18, 3))
sketch1.addConstraint(Sketcher.Constraint("Horizontal", 48, 3, 52, 3))
sketch1.addConstraint(Sketcher.Constraint("Horizontal", 46, 3, 54, 3))
sketch1.addConstraint(Sketcher.Constraint("Horizontal", 42, 3, 58, 3))
sketch1.addConstraint(Sketcher.Constraint("Horizontal", 38, 3, 62, 3))
sketch1.addConstraint(Sketcher.Constraint("Horizontal", 34, 3, 66, 3))
sketch1.addConstraint(Sketcher.Constraint("Horizontal", 28, 3, 72, 3))
sketch1.addConstraint(Sketcher.Constraint("Horizontal", 24, 3, 76, 3))
sketch1.addConstraint(Sketcher.Constraint("Horizontal", 20, 3, 2, 2))
sketch1.addConstraint(Sketcher.Constraint("Horizontal", 4, 3, 3, 2))
sketch1.addConstraint(Sketcher.Constraint("Horizontal", 14, 3, 6, 1))
sketch1.addConstraint(Sketcher.Constraint("Horizontal", 8, 1, 11, 2))
sketch1.addConstraint(Sketcher.Constraint("Horizontal", 7, 2, 12, 1))
sketch1.addConstraint(Sketcher.Constraint("Horizontal", 6, 1, 13, 2))
sketch1.addConstraint(Sketcher.Constraint("Horizontal", 3, 2, 16, 2))
sketch1.addConstraint(Sketcher.Constraint("Horizontal", 2, 2, 17, 2))
sketch1.addConstraint(Sketcher.Constraint("Horizontal", 17, 2, 20, 2))
sketch1.addConstraint(Sketcher.Constraint("Horizontal", 76, 3, 21, 2))
sketch1.addConstraint(Sketcher.Constraint("Horizontal", 21, 2, 24, 2))
sketch1.addConstraint(Sketcher.Constraint("Horizontal", 74, 3, 25, 2))
sketch1.addConstraint(Sketcher.Constraint("Horizontal", 64, 3, 35, 2))
sketch1.addConstraint(Sketcher.Constraint("Horizontal", 35, 2, 38, 2))
sketch1.addConstraint(Sketcher.Constraint("Horizontal", 58, 3, 39, 2))
sketch1.addConstraint(Sketcher.Constraint("Horizontal", 39, 2, 42, 2))
sketch1.addConstraint(Sketcher.Constraint("Horizontal", 56, 3, 43, 2))
sketch1.addConstraint(Sketcher.Constraint("Horizontal", 52, 3, 47, 2))
sketch1.addConstraint(Sketcher.Constraint("Horizontal", 48, 1, 51, 2))
sketch1.addConstraint(Sketcher.Constraint("Horizontal", 47, 2, 52, 1))
sketch1.addConstraint(Sketcher.Constraint("Horizontal", 46, 1, 53, 2))
sketch1.addConstraint(Sketcher.Constraint("Horizontal", 43, 2, 56, 2))
sketch1.addConstraint(Sketcher.Constraint("Horizontal", 42, 2, 57, 2))
sketch1.addConstraint(Sketcher.Constraint("Horizontal", 57, 2, 60, 2))
sketch1.addConstraint(Sketcher.Constraint("Horizontal", 38, 2, 61, 2))
sketch1.addConstraint(Sketcher.Constraint("Horizontal", 61, 2, 64, 2))
sketch1.addConstraint(Sketcher.Constraint("Horizontal", 34, 1, 65, 2))
sketch1.addConstraint(Sketcher.Constraint("Horizontal", 31, 2, 68, 1))
sketch1.addConstraint(Sketcher.Constraint("Horizontal", 30, 2, 69, 2))
sketch1.addConstraint(Sketcher.Constraint("Horizontal", 29, 2, 70, 2))
sketch1.addConstraint(Sketcher.Constraint("Horizontal", 28, 1, 71, 2))
sketch1.addConstraint(Sketcher.Constraint("Horizontal", 25, 2, 74, 1))
sketch1.addConstraint(Sketcher.Constraint("Horizontal", 24, 2, 75, 2))
sketch1.addConstraint(Sketcher.Constraint("Horizontal", 75, 2, 78, 2))
sketch1.addConstraint(Sketcher.Constraint("Horizontal", 20, 2, 79, 2))
sketch1.addConstraint(Sketcher.Constraint("Vertical", 28, 3, 32, 3))
sketch1.addConstraint(Sketcher.Constraint("Vertical", 26, 3, 34, 3))
sketch1.addConstraint(Sketcher.Constraint("Vertical", 22, 3, 38, 3))
sketch1.addConstraint(Sketcher.Constraint("Vertical", 18, 3, 42, 3))
sketch1.addConstraint(Sketcher.Constraint("Vertical", 14, 3, 46, 3))
sketch1.addConstraint(Sketcher.Constraint("Vertical", 6, 3, 52, 3))
sketch1.addConstraint(Sketcher.Constraint("Vertical", 4, 3, 56, 3))
sketch1.addConstraint(Sketcher.Constraint("Vertical", 0, 3, 60, 3))
sketch1.addConstraint(Sketcher.Constraint("Vertical", 68, 3, 72, 3))
sketch1.addConstraint(Sketcher.Constraint("Vertical", 66, 3, 74, 3))
sketch1.addConstraint(Sketcher.Constraint("Vertical", 62, 3, 0, 2))
sketch1.addConstraint(Sketcher.Constraint("Vertical", 58, 3, 1, 2))
sketch1.addConstraint(Sketcher.Constraint("Vertical", 1, 2, 4, 2))
sketch1.addConstraint(Sketcher.Constraint("Vertical", 52, 3, 5, 2))
sketch1.addConstraint(Sketcher.Constraint("Vertical", 46, 3, 14, 1))
sketch1.addConstraint(Sketcher.Constraint("Vertical", 44, 3, 15, 2))
sketch1.addConstraint(Sketcher.Constraint("Vertical", 15, 2, 18, 2))
sketch1.addConstraint(Sketcher.Constraint("Vertical", 40, 3, 19, 2))
sketch1.addConstraint(Sketcher.Constraint("Vertical", 19, 2, 22, 2))
sketch1.addConstraint(Sketcher.Constraint("Vertical", 36, 3, 23, 2))
sketch1.addConstraint(Sketcher.Constraint("Vertical", 34, 3, 26, 1))
sketch1.addConstraint(Sketcher.Constraint("Vertical", 32, 3, 27, 2))
sketch1.addConstraint(Sketcher.Constraint("Vertical", 28, 1, 31, 2))
sketch1.addConstraint(Sketcher.Constraint("Vertical", 26, 1, 33, 2))
sketch1.addConstraint(Sketcher.Constraint("Vertical", 23, 2, 36, 2))
sketch1.addConstraint(Sketcher.Constraint("Vertical", 22, 2, 37, 2))
sketch1.addConstraint(Sketcher.Constraint("Vertical", 37, 2, 40, 2))
sketch1.addConstraint(Sketcher.Constraint("Vertical", 18, 2, 41, 2))
sketch1.addConstraint(Sketcher.Constraint("Vertical", 41, 2, 44, 2))
sketch1.addConstraint(Sketcher.Constraint("Vertical", 14, 1, 45, 2))
sketch1.addConstraint(Sketcher.Constraint("Vertical", 11, 2, 48, 1))
sketch1.addConstraint(Sketcher.Constraint("Vertical", 10, 2, 49, 2))
sketch1.addConstraint(Sketcher.Constraint("Vertical", 9, 2, 50, 2))
sketch1.addConstraint(Sketcher.Constraint("Vertical", 5, 2, 54, 1))
sketch1.addConstraint(Sketcher.Constraint("Vertical", 4, 2, 55, 2))
sketch1.addConstraint(Sketcher.Constraint("Vertical", 55, 2, 58, 2))
sketch1.addConstraint(Sketcher.Constraint("Vertical", 0, 2, 59, 2))
sketch1.addConstraint(Sketcher.Constraint("Vertical", 59, 2, 62, 2))
sketch1.addConstraint(Sketcher.Constraint("Vertical", 76, 3, 63, 2))
sketch1.addConstraint(Sketcher.Constraint("Vertical", 74, 3, 66, 1))
sketch1.addConstraint(Sketcher.Constraint("Vertical", 72, 3, 67, 2))
sketch1.addConstraint(Sketcher.Constraint("Vertical", 66, 1, 73, 2))
sketch1.addConstraint(Sketcher.Constraint("Vertical", 63, 2, 76, 2))
sketch1.addConstraint(Sketcher.Constraint("Vertical", 62, 2, 77, 2))
sketch1.addConstraint(Sketcher.Constraint("Equal", 5, 15))
sketch1.addConstraint(Sketcher.Constraint("Equal", 1, 19))
sketch1.addConstraint(Sketcher.Constraint("Equal", 37, 63))
sketch1.addConstraint(Sketcher.Constraint("Equal", 33, 67))
sketch1.addConstraint(Sketcher.Constraint("Equal", 77, 3))
sketch1.addConstraint(Sketcher.Constraint("Equal", 73, 7))
sketch1.addConstraint(Sketcher.Constraint("Equal", 59, 21))
sketch1.addConstraint(Sketcher.Constraint("Equal", 55, 25))
sketch1.addConstraint(Sketcher.Constraint("Equal", 50, 30))
sketch1.addConstraint(Sketcher.Constraint("Equal", 25, 35))
sketch1.addConstraint(Sketcher.Constraint("Equal", 21, 39))
sketch1.addConstraint(Sketcher.Constraint("Equal", 17, 43))
sketch1.addConstraint(Sketcher.Constraint("Equal", 13, 47))
sketch1.addConstraint(Sketcher.Constraint("Equal", 11, 29))
sketch1.addConstraint(Sketcher.Constraint("Diameter", 80, 4.3))
sketch1.addConstraint(Sketcher.Constraint("Radius", 0, 0.2))
sketch1.addConstraint(Sketcher.Constraint("DistanceX", 1, 2, 1, 1, 7.1))
sketch1.addConstraint(Sketcher.Constraint("DistanceX", 23, 1, 23, 2, 1.1))
sketch1.addConstraint(Sketcher.Constraint("DistanceX", 5, 1, 5, 2, 3.85))
sketch1.addConstraint(Sketcher.Constraint("Radius", 8, 0.200003))
sketch1.addConstraint(Sketcher.Constraint("DistanceX", 10, 2, 10, 1, 5.878679))
sketch1.addConstraint(Sketcher.Constraint("DistanceY", -1, 1, 0, 3, 8.434901))
sketch1.addConstraint(Sketcher.Constraint("DistanceY", 34, 3, -1, 1, 7.915099))
sketch1.addConstraint(Sketcher.Constraint("DistanceY", 36, 3, -1, 1, 4.065099))
sketch1.addConstraint(Sketcher.Constraint("DistanceY", 48, 3, -1, 1, 9.2586))
sketch1.addConstraint(Sketcher.Constraint("DistanceY", 80, 3, -1, 1, 1.365099))
sketch1.addConstraint(Sketcher.Constraint("DistanceY", -1, 1, 9, 2, 2.634901))
sketch1.addConstraint(Sketcher.Constraint("DistanceY", 46, 1, -1, 1, 9.665099))
sketch1.addConstraint(Sketcher.Constraint("DistanceX", -1, 1, 2, 3, 2.778948))
sketch1.addConstraint(Sketcher.Constraint("DistanceX", -1, 1, 8, 1, 6.770369))
sketch1.addConstraint(Sketcher.Constraint("DistanceX", -1, 1, 80, 3, 0.078947))
pad1 = body.newObject("PartDesign::Pad", "Pad")
pad1.Profile = sketch1
pad1.Length = 380

doc.recompute()
